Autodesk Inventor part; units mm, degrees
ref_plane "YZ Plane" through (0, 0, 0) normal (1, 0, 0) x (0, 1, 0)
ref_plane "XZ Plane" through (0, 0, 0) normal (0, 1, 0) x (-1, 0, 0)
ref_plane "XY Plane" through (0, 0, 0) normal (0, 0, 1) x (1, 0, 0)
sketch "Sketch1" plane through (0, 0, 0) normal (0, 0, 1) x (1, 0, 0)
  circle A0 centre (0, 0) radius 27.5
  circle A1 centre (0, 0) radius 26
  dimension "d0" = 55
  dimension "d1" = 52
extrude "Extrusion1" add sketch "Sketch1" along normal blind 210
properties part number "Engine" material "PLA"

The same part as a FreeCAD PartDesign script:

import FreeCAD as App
import Part
import Sketcher
from FreeCAD import Vector
Q = App.Units.Quantity

doc = App.newDocument("Part")
body = doc.addObject("PartDesign::Body", "Body")

# Sketch on XY plane
sketch1 = body.newObject("Sketcher::SketchObject", "Sketch")
sketch1.AttachmentSupport = (doc.getObject("XY_Plane"), [""])
sketch1.MapMode = "FlatFace"
sketch1.addGeometry([
    Part.Circle(Vector(0, 0, 0), Vector(0, 0, 1), 27.5),
    Part.Circle(Vector(0, 0, 0), Vector(0, 0, 1), 26),
], False)
sketch1.addConstraint([
    Sketcher.Constraint("Coincident", 0, 3, -1, 1),
    Sketcher.Constraint("Coincident", 1, 3, -1, 1),
    Sketcher.Constraint("Diameter", 0, Q("55 mm")),
    Sketcher.Constraint("Diameter", 1, Q("52 mm")),
])
pad1 = body.newObject("PartDesign::Pad", "Pad")
pad1.Profile = sketch1
pad1.Length = 210

doc.recompute()
